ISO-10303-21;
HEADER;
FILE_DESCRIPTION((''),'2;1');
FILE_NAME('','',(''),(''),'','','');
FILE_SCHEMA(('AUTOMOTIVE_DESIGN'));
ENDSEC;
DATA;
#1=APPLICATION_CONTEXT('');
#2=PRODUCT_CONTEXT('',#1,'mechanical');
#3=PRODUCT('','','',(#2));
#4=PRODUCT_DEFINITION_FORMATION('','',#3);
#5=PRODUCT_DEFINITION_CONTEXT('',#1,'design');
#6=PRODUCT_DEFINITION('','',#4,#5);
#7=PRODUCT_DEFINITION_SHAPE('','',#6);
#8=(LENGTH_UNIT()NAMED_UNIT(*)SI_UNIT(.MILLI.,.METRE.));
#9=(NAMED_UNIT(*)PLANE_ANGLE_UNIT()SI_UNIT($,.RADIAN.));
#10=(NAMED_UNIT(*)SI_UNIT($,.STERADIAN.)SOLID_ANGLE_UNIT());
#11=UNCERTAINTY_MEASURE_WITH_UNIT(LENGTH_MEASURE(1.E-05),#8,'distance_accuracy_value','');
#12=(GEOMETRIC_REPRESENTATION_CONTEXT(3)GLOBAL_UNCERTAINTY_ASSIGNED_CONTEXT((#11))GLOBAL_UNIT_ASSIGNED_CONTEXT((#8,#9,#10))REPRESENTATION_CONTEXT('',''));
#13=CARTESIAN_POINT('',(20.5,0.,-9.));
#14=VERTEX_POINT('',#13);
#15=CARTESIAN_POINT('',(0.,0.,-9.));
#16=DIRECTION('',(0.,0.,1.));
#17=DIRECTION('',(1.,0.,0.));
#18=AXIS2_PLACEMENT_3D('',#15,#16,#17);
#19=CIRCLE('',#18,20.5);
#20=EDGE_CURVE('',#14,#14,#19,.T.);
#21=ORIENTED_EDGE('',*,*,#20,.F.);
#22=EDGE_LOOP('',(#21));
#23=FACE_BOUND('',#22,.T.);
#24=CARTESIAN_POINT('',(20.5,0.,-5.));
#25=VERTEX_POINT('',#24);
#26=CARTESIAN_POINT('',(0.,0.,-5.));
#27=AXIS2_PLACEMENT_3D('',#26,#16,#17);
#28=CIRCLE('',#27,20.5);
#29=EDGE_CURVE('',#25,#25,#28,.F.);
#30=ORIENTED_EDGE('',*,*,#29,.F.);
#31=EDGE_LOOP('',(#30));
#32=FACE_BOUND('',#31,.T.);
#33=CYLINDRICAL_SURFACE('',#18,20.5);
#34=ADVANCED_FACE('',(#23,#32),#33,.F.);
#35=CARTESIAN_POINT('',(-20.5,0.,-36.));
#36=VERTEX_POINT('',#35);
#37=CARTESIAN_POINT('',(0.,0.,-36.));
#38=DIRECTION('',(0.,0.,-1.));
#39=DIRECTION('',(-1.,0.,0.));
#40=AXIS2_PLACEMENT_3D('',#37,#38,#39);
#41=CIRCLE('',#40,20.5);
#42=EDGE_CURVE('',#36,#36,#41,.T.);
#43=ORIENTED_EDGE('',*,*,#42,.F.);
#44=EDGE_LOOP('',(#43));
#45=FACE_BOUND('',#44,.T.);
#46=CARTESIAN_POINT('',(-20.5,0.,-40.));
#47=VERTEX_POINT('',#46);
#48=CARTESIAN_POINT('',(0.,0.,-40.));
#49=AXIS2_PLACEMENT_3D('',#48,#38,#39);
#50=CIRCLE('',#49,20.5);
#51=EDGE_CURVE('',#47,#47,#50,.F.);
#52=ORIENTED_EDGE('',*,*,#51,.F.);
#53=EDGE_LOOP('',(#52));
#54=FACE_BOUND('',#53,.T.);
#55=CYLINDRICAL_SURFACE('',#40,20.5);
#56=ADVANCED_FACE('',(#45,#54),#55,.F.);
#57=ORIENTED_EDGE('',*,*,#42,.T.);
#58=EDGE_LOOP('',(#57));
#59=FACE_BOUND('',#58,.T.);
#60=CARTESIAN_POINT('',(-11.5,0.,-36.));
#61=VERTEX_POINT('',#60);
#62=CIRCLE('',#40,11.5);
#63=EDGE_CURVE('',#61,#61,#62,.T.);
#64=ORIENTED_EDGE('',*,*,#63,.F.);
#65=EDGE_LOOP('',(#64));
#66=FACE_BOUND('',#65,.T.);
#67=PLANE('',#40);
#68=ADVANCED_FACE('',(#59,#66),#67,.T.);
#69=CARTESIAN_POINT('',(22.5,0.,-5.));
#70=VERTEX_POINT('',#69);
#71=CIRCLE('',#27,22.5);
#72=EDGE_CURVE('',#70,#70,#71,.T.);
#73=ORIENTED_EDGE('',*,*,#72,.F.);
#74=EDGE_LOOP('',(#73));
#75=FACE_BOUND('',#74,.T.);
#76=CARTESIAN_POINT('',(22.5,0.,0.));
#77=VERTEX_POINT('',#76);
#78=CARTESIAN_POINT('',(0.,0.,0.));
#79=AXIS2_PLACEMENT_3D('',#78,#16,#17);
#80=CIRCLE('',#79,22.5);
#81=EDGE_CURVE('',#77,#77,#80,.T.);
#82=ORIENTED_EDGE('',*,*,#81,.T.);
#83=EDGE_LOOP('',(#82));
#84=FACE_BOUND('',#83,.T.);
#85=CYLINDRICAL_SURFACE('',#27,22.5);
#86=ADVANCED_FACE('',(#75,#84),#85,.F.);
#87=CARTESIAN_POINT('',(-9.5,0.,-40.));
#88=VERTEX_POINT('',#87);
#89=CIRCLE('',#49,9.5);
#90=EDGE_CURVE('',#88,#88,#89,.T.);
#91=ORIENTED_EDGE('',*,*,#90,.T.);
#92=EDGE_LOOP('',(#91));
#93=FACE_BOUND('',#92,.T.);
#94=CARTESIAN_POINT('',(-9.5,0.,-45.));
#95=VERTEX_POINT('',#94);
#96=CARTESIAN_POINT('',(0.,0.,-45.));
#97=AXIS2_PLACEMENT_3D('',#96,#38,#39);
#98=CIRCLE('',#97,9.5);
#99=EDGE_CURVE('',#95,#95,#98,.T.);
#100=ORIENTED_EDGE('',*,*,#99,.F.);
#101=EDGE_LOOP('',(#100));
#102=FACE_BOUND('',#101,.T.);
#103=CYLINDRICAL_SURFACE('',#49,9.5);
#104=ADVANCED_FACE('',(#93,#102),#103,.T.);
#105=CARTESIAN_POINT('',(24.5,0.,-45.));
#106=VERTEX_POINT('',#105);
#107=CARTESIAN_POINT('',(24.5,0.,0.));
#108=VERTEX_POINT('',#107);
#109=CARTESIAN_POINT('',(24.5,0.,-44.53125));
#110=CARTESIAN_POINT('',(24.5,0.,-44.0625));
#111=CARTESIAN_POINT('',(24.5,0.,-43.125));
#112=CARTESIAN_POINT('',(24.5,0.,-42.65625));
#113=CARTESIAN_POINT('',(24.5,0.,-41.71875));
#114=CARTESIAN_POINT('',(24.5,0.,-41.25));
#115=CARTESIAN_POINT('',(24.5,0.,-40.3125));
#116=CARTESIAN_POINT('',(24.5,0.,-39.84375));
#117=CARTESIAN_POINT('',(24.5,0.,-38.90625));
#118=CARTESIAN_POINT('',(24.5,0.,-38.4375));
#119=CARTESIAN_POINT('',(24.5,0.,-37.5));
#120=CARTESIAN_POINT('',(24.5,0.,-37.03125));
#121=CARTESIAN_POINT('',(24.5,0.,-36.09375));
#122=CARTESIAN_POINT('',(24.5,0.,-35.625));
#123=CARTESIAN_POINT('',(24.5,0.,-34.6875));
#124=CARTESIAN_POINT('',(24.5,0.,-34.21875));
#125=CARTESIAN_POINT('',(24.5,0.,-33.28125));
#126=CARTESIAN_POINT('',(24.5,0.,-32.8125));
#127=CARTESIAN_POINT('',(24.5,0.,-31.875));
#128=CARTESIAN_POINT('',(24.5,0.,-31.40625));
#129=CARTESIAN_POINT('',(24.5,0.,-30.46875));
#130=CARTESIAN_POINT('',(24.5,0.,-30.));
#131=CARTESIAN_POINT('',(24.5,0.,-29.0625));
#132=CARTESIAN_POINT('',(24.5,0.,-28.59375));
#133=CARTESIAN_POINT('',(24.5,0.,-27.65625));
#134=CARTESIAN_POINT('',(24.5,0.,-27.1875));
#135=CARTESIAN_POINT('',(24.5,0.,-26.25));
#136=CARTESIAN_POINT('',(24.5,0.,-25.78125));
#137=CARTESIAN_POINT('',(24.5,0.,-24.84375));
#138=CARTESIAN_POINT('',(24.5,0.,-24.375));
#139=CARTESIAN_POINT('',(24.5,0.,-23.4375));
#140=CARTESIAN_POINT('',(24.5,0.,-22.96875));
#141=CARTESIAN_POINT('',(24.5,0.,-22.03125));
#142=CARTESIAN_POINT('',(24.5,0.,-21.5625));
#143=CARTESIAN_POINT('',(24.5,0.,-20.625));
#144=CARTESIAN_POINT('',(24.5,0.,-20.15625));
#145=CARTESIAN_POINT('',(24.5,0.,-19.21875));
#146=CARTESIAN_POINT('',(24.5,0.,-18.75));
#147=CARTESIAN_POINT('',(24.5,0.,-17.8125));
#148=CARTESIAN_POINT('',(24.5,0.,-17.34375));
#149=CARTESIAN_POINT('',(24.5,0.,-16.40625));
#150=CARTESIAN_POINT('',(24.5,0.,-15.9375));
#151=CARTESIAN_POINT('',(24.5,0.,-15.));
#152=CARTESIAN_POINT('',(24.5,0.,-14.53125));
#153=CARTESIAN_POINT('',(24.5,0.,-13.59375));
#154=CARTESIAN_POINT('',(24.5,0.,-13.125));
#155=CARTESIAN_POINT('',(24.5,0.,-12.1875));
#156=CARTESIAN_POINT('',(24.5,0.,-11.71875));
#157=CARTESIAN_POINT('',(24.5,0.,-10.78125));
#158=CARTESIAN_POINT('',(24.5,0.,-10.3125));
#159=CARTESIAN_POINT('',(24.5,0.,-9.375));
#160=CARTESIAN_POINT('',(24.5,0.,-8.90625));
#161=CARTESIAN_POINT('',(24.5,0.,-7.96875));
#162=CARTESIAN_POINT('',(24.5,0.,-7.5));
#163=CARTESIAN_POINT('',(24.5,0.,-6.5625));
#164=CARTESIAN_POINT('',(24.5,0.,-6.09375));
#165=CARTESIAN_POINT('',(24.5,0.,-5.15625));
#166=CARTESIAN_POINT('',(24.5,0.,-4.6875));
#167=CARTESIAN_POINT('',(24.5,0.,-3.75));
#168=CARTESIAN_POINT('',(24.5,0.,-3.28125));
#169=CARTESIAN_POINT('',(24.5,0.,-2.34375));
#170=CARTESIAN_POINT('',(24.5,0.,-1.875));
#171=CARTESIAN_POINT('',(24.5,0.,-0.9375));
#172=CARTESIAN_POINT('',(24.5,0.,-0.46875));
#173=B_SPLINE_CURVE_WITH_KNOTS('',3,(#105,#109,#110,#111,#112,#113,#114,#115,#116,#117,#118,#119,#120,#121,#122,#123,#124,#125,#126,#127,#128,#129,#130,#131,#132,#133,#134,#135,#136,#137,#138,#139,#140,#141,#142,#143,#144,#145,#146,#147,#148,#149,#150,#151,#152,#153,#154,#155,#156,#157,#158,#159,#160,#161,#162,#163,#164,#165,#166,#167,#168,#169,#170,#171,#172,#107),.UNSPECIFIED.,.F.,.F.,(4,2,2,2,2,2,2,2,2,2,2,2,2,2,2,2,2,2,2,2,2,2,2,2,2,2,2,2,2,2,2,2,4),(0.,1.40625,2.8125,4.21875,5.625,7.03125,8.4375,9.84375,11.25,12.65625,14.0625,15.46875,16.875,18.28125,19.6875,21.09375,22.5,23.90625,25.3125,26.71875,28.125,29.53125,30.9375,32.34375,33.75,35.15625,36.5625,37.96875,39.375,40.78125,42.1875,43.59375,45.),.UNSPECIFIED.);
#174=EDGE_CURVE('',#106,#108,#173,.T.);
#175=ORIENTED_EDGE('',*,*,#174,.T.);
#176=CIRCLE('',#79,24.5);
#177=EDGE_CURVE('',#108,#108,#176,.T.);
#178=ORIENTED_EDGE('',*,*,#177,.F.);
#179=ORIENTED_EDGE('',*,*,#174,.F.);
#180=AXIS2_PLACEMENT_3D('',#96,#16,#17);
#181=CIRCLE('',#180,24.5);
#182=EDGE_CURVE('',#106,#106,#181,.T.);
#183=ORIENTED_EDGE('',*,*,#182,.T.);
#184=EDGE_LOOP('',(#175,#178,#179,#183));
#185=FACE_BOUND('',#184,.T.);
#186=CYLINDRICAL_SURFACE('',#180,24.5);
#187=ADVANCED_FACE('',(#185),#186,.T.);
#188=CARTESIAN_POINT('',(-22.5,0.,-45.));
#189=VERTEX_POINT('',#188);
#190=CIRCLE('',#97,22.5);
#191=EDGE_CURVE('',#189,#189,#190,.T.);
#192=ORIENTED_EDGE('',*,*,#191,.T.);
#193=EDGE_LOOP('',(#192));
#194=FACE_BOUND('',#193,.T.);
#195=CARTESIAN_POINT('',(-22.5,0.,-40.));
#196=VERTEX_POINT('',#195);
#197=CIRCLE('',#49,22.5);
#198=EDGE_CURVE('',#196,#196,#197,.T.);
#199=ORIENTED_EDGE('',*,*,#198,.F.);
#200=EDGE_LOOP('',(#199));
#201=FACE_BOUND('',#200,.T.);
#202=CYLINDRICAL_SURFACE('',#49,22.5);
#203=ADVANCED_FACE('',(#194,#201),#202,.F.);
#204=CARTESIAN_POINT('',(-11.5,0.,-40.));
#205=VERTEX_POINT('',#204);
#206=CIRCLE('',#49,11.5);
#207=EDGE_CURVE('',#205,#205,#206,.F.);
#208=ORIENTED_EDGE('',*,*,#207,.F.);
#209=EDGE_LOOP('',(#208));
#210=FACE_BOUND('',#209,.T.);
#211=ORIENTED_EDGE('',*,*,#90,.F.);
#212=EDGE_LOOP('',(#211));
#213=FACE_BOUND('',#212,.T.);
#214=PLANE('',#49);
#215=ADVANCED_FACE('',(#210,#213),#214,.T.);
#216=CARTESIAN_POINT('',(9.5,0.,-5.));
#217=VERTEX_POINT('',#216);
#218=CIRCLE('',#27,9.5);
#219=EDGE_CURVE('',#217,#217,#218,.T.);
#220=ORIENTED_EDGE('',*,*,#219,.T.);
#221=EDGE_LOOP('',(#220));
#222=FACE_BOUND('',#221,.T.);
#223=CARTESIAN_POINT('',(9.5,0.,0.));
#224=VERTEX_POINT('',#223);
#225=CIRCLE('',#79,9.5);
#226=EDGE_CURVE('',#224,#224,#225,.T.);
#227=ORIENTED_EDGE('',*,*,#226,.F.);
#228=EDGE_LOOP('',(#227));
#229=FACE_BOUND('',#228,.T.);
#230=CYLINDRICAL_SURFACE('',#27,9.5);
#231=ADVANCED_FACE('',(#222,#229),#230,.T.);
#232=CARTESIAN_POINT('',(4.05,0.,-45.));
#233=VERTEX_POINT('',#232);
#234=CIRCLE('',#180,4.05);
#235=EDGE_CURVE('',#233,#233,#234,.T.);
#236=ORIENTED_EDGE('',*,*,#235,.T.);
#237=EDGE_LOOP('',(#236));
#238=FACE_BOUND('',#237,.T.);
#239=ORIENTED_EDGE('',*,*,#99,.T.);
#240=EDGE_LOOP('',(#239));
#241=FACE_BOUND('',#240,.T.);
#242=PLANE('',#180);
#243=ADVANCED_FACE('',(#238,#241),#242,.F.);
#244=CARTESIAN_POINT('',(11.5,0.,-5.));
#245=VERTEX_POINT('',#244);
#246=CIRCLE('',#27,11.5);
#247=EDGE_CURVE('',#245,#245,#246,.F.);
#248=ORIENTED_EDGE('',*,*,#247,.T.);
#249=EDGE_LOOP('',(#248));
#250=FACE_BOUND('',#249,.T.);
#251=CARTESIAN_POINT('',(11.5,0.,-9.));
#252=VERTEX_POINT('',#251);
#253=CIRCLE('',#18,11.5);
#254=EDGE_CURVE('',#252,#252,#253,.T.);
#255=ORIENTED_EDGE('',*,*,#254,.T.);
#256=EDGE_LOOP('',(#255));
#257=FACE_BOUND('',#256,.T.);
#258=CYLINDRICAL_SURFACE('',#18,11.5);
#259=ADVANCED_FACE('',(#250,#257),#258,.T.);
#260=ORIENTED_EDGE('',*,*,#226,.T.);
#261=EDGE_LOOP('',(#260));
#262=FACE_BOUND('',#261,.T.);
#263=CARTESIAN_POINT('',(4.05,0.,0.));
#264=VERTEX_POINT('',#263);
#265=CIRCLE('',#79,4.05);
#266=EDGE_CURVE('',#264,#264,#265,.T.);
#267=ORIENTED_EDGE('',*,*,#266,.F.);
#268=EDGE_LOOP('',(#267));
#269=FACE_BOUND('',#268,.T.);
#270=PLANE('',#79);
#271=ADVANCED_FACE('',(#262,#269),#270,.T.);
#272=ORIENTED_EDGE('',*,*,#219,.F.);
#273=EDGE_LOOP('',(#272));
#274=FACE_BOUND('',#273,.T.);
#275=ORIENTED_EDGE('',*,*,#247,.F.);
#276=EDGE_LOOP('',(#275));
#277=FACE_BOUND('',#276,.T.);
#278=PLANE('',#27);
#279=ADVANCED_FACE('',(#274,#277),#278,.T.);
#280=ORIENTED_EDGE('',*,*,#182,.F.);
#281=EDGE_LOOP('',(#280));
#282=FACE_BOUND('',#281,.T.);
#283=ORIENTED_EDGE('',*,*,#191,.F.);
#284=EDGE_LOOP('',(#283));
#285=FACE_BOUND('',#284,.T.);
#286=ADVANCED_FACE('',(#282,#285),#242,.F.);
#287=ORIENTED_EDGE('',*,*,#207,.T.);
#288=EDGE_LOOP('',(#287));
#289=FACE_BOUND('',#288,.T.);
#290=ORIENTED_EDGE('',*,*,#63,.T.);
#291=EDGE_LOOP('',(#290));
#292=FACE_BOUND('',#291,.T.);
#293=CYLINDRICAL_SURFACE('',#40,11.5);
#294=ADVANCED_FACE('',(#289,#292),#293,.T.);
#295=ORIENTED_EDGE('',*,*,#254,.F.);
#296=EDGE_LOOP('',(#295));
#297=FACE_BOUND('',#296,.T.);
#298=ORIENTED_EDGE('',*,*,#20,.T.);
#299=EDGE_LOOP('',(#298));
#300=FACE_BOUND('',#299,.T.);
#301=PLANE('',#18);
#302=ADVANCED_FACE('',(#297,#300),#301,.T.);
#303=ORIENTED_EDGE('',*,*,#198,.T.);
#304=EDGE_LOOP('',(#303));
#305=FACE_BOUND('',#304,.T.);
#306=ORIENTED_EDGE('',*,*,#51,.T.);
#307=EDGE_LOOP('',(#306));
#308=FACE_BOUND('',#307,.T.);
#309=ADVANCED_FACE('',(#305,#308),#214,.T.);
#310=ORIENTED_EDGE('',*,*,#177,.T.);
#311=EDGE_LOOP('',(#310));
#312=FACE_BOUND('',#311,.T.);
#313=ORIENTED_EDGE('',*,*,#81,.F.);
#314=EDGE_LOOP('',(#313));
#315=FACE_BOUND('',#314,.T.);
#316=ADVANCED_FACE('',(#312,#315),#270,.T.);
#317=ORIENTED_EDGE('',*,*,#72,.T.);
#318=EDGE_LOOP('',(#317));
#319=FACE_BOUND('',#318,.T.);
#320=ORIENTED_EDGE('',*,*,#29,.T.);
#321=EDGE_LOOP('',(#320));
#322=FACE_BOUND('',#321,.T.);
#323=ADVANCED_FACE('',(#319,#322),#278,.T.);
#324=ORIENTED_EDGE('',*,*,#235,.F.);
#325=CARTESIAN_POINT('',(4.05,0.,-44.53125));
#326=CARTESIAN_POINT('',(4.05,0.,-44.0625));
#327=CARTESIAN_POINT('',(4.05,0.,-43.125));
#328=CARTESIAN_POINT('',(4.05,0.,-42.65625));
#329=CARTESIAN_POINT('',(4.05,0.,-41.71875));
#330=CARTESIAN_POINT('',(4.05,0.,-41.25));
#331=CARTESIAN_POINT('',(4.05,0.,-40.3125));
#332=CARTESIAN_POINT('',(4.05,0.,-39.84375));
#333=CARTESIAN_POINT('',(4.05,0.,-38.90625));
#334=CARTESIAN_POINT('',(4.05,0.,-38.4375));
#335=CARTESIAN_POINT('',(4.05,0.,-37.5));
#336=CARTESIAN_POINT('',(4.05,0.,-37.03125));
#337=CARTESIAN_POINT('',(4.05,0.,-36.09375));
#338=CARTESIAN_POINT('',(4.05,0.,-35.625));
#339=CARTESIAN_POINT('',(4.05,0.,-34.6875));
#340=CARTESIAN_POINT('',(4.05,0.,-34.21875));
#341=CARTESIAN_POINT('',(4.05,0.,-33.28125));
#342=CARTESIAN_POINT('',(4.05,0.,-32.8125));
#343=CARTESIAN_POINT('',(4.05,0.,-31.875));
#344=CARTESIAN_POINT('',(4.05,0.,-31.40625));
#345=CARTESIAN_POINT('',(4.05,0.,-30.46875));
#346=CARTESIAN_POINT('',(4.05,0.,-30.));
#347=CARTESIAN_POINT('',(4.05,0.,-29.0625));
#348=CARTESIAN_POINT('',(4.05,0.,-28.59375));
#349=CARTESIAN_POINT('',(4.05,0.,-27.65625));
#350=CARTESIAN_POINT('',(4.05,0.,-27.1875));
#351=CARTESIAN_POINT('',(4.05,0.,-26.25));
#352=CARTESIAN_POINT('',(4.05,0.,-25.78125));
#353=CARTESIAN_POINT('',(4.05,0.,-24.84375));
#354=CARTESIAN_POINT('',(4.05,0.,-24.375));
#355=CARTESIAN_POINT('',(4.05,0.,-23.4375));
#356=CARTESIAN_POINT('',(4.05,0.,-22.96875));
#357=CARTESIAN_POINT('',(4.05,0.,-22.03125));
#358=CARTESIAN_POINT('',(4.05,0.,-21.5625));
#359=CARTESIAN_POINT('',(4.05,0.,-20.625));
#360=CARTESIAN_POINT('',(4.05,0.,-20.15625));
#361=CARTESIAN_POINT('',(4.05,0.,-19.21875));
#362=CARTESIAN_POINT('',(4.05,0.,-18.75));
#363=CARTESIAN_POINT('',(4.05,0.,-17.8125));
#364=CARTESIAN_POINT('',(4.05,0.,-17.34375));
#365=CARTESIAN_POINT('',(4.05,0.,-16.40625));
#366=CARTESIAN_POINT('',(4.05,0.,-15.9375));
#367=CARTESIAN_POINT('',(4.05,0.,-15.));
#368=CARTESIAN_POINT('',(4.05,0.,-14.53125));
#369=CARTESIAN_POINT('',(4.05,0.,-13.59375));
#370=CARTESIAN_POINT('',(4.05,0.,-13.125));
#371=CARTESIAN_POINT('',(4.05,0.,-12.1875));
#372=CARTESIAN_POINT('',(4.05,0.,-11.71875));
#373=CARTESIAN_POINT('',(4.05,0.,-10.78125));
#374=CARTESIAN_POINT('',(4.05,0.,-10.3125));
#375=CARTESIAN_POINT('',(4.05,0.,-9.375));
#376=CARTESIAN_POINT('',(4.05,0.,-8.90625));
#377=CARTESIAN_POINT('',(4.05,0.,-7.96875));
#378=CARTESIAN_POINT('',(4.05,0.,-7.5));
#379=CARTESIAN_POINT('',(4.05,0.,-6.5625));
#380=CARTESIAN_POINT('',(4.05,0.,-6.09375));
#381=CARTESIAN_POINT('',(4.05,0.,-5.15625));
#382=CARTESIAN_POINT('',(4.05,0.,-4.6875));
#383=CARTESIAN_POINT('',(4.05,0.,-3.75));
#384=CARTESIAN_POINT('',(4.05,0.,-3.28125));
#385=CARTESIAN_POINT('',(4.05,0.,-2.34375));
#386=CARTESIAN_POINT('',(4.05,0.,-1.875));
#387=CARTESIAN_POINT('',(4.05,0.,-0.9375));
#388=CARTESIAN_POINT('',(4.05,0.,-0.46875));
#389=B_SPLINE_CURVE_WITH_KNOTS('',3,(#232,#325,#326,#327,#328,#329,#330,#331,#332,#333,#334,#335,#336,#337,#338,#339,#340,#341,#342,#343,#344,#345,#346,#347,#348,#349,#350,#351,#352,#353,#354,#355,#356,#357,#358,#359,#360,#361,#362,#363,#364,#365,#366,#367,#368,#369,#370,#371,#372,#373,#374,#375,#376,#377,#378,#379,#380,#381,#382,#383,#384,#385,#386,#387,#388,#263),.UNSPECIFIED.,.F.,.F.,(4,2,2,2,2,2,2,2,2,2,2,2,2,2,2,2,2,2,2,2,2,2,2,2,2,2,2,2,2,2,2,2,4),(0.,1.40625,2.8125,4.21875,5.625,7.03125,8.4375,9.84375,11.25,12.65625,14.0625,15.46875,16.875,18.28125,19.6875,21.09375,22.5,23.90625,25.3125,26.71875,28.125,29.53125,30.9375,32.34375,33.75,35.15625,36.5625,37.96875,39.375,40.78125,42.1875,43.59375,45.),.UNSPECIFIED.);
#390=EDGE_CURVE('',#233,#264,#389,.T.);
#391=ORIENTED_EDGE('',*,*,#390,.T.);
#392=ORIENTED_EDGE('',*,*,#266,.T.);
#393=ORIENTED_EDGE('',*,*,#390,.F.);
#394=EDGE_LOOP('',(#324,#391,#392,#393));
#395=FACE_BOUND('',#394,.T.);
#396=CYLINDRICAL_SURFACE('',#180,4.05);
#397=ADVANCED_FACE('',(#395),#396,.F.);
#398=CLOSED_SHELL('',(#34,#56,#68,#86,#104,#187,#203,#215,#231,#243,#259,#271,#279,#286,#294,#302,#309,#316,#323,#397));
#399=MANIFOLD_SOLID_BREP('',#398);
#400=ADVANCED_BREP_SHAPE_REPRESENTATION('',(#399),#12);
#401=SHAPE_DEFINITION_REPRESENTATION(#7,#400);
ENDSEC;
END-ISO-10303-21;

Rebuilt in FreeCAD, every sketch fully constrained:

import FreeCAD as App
import Part
import Sketcher

doc = App.newDocument("Part")
body = doc.addObject("PartDesign::Body", "Body")

# Sketch on XY plane
sketch1 = body.newObject("Sketcher::SketchObject", "Sketch")
sketch1.AttachmentSupport = (doc.getObject("XY_Plane"), [""])
sketch1.MapMode = "FlatFace"
sketch1.addGeometry(Part.Circle(App.Vector(0, 0, 0), App.Vector(0, 0, 1), 24.5), False)
sketch1.addGeometry(Part.Circle(App.Vector(0, 0, 0), App.Vector(0, 0, 1), 4), False)
sketch1.addConstraint(Sketcher.Constraint("Coincident", 0, 3, -1, 1))
sketch1.addConstraint(Sketcher.Constraint("Coincident", 1, 3, -1, 1))
sketch1.addConstraint(Sketcher.Constraint("Diameter", 0, 49.0))
sketch1.addConstraint(Sketcher.Constraint("Diameter", 1, 8.1))
pad1 = body.newObject("PartDesign::Pad", "Pad")
pad1.Profile = sketch1
pad1.Length = 45
pad1.Reversed = True

# Sketch on XY plane
sketch2 = body.newObject("Sketcher::SketchObject", "Sketch001")
sketch2.AttachmentSupport = (doc.getObject("XY_Plane"), [""])
sketch2.MapMode = "FlatFace"
sketch2.addGeometry(Part.Circle(App.Vector(0, 0, 0), App.Vector(0, 0, 1), 20), False)
sketch2.addGeometry(Part.Circle(App.Vector(0, 0, 0), App.Vector(0, 0, 1), 12), False)
sketch2.addConstraint(Sketcher.Constraint("Coincident", 0, 3, -1, 1))
sketch2.addConstraint(Sketcher.Constraint("Coincident", 1, 3, -1, 1))
sketch2.addConstraint(Sketcher.Constraint("Diameter", 0, 41.0))
sketch2.addConstraint(Sketcher.Constraint("Diameter", 1, 23.0))
pocket1 = body.newObject("PartDesign::Pocket", "Pocket")
pocket1.Profile = sketch2
pocket1.Length = 9

# Sketch on XY plane
sketch3 = body.newObject("Sketcher::SketchObject", "Sketch002")
sketch3.AttachmentSupport = (doc.getObject("XY_Plane"), [""])
sketch3.MapMode = "FlatFace"
sketch3.AttachmentOffset = App.Placement(App.Vector(0, 0, -36), App.Rotation())
sketch3.addGeometry(Part.Circle(App.Vector(0, 0, 0), App.Vector(0, 0, 1), 20), False)
sketch3.addGeometry(Part.Circle(App.Vector(0, 0, 0), App.Vector(0, 0, 1), 12), False)
sketch3.addConstraint(Sketcher.Constraint("Coincident", 0, 3, -1, 1))
sketch3.addConstraint(Sketcher.Constraint("Coincident", 1, 3, -1, 1))
sketch3.addConstraint(Sketcher.Constraint("Diameter", 0, 41.0))
sketch3.addConstraint(Sketcher.Constraint("Diameter", 1, 23.0))
pocket2 = body.newObject("PartDesign::Pocket", "Pocket001")
pocket2.Profile = sketch3
pocket2.Length = 9

# Sketch on XY plane
sketch4 = body.newObject("Sketcher::SketchObject", "Sketch003")
sketch4.AttachmentSupport = (doc.getObject("XY_Plane"), [""])
sketch4.MapMode = "FlatFace"
sketch4.addGeometry(Part.Circle(App.Vector(0, 0, 0), App.Vector(0, 0, 1), 22), False)
sketch4.addGeometry(Part.Circle(App.Vector(0, 0, 0), App.Vector(0, 0, 1), 10), False)
sketch4.addConstraint(Sketcher.Constraint("Coincident", 0, 3, -1, 1))
sketch4.addConstraint(Sketcher.Constraint("Coincident", 1, 3, -1, 1))
sketch4.addConstraint(Sketcher.Constraint("Diameter", 0, 45.0))
sketch4.addConstraint(Sketcher.Constraint("Diameter", 1, 19.0))
pocket3 = body.newObject("PartDesign::Pocket", "Pocket002")
pocket3.Profile = sketch4
pocket3.Length = 5

# Sketch on XY plane
sketch5 = body.newObject("Sketcher::SketchObject", "Sketch004")
sketch5.AttachmentSupport = (doc.getObject("XY_Plane"), [""])
sketch5.MapMode = "FlatFace"
sketch5.AttachmentOffset = App.Placement(App.Vector(0, 0, -40), App.Rotation())
sketch5.addGeometry(Part.Circle(App.Vector(0, 0, 0), App.Vector(0, 0, 1), 22), False)
sketch5.addGeometry(Part.Circle(App.Vector(0, 0, 0), App.Vector(0, 0, 1), 10), False)
sketch5.addConstraint(Sketcher.Constraint("Coincident", 0, 3, -1, 1))
sketch5.addConstraint(Sketcher.Constraint("Coincident", 1, 3, -1, 1))
sketch5.addConstraint(Sketcher.Constraint("Diameter", 0, 45.0))
sketch5.addConstraint(Sketcher.Constraint("Diameter", 1, 19.0))
pocket4 = body.newObject("PartDesign::Pocket", "Pocket003")
pocket4.Profile = sketch5
pocket4.Length = 5

doc.recompute()
